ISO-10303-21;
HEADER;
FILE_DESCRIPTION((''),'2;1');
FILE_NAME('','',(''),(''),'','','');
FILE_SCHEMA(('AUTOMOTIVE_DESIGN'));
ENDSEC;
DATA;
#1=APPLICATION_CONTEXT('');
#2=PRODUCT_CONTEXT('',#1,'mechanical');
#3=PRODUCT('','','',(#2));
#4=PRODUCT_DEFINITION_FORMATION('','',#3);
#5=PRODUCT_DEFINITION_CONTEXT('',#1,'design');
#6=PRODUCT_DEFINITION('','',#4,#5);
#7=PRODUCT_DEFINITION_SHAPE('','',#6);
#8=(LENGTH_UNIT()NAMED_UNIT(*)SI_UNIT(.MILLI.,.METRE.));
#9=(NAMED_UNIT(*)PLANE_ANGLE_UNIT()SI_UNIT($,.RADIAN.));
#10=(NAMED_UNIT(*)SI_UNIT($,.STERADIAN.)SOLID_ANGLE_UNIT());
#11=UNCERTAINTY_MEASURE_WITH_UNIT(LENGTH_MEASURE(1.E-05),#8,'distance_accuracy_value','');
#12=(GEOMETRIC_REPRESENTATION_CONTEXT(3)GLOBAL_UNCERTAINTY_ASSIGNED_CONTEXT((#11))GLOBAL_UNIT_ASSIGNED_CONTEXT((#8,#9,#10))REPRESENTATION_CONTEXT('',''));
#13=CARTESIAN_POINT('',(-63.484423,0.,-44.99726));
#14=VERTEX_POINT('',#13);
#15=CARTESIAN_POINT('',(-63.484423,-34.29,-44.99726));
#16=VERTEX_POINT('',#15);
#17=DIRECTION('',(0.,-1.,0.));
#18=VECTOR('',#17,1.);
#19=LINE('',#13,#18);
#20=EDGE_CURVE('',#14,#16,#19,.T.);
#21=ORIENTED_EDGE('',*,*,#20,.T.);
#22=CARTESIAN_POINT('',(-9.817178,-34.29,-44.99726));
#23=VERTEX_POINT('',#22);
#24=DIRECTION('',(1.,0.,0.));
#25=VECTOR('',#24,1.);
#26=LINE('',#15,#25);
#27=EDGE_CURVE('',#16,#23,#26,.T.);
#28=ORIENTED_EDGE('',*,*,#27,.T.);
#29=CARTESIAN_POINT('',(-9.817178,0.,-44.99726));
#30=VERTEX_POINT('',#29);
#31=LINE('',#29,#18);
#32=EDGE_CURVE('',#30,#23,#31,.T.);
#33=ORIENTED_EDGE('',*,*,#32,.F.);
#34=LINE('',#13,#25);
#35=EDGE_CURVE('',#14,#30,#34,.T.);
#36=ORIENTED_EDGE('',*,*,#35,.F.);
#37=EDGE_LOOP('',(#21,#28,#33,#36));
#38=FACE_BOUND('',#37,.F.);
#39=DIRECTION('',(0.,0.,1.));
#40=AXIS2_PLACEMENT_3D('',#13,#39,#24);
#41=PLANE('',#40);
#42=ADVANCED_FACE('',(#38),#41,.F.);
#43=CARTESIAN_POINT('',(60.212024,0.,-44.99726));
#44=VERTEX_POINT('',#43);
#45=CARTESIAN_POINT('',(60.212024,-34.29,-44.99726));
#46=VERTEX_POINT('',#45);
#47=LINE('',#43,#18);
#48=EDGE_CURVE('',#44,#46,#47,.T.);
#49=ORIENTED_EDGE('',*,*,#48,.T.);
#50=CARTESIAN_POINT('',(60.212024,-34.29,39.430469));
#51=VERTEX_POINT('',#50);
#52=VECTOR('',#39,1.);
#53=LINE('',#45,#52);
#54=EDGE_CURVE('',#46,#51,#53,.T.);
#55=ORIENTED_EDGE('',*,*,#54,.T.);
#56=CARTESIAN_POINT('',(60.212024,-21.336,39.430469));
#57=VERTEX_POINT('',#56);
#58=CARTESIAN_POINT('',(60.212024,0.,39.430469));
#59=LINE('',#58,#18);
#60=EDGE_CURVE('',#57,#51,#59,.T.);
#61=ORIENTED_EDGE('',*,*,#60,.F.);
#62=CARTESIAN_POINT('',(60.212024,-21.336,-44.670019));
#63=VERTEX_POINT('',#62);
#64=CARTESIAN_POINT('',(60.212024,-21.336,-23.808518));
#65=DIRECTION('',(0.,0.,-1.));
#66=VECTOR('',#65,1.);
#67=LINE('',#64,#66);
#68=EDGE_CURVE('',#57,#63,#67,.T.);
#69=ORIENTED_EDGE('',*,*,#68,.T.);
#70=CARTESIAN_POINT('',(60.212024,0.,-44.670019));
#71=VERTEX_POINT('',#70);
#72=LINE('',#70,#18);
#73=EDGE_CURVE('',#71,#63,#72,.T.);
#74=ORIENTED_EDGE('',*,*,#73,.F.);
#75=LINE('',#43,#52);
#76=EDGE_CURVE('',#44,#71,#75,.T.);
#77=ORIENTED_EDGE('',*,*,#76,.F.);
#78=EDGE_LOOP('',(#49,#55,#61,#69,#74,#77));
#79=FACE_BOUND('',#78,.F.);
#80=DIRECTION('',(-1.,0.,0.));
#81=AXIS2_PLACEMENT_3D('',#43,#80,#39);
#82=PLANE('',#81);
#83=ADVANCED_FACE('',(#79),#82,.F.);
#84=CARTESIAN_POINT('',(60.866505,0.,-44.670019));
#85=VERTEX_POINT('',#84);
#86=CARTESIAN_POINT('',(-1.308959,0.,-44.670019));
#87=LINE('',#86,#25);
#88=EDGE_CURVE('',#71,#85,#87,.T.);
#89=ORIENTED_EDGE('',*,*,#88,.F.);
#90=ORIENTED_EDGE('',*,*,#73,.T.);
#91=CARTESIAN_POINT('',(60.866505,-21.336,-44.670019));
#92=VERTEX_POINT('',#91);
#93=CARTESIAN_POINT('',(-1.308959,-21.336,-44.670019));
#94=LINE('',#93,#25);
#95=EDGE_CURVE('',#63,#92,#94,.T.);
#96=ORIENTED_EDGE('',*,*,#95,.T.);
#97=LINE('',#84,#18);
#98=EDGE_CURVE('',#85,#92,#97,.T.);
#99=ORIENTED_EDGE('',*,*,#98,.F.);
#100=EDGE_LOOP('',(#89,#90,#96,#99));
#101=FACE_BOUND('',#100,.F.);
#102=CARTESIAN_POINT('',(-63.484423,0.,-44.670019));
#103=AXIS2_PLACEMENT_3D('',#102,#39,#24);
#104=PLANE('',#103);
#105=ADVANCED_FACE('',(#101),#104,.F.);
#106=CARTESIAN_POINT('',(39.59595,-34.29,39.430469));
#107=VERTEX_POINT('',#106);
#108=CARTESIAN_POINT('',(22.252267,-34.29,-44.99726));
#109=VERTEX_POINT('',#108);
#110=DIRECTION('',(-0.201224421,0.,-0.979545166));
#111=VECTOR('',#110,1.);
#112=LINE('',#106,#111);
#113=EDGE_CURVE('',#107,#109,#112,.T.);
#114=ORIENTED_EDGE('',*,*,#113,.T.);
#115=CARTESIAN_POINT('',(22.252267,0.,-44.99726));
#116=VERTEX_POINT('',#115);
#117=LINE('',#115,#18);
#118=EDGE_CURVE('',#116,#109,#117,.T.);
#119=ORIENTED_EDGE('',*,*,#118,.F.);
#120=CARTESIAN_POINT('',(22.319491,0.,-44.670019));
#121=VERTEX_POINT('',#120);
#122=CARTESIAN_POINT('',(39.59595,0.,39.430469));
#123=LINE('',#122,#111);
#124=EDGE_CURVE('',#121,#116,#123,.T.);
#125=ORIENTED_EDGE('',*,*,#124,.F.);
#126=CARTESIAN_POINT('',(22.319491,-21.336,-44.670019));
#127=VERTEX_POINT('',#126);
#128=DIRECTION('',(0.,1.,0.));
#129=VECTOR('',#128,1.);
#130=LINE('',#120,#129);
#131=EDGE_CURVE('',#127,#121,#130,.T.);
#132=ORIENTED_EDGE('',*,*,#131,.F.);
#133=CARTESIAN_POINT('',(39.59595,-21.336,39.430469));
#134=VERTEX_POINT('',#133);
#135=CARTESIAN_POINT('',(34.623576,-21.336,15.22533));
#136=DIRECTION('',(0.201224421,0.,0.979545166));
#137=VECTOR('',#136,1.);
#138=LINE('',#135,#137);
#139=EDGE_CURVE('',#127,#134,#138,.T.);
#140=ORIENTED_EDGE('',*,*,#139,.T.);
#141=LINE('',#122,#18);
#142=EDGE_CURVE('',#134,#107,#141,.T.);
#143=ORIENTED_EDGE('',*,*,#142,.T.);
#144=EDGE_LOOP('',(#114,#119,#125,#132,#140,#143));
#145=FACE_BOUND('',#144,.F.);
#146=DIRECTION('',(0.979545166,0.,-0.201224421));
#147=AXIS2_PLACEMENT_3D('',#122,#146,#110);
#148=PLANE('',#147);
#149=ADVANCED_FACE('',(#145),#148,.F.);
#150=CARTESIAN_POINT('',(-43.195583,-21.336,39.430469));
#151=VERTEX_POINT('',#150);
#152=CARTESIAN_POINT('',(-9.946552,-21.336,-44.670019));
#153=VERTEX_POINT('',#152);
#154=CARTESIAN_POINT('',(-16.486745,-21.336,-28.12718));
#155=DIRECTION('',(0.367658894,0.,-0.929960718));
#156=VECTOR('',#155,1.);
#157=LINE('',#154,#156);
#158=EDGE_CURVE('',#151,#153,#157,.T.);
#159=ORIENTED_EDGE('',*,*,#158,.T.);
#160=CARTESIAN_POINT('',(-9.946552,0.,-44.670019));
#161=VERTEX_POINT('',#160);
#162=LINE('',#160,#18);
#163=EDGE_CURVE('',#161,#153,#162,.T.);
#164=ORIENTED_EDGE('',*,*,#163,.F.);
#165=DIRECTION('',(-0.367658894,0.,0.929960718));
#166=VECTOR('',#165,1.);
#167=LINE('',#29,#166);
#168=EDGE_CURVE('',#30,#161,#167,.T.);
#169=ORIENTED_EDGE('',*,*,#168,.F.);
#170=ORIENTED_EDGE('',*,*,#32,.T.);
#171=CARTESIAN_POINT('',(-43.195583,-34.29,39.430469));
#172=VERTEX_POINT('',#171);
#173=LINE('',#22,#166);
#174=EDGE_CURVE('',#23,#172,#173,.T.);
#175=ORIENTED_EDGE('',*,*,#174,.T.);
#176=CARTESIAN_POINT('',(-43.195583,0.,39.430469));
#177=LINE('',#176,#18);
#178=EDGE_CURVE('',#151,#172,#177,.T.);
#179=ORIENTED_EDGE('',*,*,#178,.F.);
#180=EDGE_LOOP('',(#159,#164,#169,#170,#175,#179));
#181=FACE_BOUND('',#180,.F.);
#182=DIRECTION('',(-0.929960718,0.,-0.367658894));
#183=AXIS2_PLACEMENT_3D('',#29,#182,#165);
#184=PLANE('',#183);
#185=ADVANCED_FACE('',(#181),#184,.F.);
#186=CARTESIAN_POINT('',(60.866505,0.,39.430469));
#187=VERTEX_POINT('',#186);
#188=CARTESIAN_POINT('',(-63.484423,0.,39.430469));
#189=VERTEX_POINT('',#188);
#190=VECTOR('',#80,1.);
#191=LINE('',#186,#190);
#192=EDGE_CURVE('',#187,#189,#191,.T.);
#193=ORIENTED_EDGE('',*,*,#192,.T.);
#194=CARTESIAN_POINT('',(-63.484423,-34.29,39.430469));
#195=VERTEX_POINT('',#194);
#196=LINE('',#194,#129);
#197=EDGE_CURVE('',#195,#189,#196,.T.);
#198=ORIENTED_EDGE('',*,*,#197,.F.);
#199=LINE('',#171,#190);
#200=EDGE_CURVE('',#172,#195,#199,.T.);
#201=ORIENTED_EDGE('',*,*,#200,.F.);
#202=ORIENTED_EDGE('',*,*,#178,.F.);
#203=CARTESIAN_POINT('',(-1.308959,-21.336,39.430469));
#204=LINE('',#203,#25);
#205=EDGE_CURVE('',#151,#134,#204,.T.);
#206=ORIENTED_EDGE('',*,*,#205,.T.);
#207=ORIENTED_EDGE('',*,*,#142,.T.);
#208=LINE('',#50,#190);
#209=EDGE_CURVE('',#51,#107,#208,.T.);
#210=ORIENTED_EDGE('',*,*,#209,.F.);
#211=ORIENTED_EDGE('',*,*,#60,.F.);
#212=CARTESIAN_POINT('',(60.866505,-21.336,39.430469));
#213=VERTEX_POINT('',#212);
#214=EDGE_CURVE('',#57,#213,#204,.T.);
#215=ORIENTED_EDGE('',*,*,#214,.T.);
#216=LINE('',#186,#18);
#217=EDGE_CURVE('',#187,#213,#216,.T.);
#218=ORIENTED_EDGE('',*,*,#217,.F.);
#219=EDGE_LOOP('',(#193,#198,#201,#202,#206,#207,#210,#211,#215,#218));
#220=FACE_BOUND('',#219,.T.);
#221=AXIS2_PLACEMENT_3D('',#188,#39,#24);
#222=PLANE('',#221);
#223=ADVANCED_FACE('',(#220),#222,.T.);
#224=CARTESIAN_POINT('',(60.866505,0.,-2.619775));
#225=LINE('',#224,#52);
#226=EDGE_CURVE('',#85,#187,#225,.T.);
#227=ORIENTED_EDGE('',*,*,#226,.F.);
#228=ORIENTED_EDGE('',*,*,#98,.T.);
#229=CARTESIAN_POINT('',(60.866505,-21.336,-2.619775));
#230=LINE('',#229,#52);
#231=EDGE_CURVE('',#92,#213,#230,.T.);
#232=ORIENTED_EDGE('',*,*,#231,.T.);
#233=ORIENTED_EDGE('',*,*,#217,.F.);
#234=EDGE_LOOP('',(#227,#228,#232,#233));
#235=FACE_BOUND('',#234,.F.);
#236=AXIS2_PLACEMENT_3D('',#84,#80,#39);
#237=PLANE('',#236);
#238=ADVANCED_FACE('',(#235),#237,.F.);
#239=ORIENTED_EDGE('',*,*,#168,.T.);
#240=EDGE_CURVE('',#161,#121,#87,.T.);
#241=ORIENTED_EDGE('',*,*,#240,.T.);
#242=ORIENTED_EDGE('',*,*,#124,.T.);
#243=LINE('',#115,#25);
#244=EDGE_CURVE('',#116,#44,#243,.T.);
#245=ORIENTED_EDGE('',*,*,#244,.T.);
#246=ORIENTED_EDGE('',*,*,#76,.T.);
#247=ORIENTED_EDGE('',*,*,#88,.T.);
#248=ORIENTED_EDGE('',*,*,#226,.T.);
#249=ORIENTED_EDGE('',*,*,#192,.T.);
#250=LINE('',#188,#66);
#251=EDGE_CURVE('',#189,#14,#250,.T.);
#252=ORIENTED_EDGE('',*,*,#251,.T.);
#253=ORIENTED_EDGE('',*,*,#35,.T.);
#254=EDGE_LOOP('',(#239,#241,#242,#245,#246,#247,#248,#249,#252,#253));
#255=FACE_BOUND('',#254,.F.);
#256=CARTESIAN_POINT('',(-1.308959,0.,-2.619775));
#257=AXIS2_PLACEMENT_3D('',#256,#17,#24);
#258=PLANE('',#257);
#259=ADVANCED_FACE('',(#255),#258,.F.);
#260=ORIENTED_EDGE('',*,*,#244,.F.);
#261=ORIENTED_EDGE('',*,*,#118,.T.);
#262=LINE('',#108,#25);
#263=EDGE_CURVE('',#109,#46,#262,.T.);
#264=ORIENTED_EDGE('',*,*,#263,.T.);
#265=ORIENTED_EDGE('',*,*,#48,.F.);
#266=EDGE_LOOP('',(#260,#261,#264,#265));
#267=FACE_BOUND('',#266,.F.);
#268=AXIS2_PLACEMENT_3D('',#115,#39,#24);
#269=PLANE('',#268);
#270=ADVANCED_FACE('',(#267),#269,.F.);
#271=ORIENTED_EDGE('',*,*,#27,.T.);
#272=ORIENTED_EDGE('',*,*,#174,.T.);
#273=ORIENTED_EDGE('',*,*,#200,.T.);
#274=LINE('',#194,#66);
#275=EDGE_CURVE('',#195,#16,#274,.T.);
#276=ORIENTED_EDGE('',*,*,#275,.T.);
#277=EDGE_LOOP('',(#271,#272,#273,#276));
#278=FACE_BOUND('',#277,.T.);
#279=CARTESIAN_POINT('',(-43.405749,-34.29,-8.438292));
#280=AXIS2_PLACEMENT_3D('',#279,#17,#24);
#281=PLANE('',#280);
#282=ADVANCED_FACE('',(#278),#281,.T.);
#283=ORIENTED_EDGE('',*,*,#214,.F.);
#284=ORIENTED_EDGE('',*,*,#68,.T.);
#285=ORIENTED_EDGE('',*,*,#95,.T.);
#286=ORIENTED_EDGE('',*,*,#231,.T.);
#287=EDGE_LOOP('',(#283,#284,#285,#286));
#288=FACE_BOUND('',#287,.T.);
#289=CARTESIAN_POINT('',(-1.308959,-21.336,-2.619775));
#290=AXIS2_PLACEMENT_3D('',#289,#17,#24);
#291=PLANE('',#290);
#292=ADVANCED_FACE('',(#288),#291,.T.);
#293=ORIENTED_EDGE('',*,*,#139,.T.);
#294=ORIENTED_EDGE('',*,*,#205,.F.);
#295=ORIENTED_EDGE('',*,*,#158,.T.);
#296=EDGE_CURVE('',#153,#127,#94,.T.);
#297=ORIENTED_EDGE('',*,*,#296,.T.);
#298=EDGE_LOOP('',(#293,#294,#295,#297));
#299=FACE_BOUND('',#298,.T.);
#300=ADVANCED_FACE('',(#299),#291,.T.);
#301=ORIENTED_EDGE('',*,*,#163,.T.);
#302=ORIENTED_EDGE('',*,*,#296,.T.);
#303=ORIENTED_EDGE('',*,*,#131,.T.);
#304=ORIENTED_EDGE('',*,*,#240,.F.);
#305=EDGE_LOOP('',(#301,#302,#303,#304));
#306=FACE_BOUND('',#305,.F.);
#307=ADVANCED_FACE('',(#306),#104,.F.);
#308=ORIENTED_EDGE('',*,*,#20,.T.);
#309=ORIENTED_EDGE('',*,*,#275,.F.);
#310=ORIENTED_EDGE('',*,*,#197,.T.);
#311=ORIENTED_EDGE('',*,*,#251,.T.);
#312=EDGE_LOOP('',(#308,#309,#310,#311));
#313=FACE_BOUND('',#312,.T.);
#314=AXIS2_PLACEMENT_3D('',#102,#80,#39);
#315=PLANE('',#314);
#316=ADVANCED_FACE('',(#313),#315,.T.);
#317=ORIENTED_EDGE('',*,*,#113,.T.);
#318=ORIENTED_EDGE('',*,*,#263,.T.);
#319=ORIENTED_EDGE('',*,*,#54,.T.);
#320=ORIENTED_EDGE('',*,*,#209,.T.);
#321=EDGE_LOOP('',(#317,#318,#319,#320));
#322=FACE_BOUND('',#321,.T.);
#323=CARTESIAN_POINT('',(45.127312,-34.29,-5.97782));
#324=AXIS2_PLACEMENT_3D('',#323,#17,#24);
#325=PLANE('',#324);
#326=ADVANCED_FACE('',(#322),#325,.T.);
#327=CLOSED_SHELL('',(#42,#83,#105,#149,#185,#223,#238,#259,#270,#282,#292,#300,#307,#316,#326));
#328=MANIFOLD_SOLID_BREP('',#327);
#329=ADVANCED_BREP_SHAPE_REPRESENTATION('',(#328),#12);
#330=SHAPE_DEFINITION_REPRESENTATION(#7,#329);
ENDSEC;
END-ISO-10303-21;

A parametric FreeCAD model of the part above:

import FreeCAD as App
import Part
import Sketcher

V = App.Vector
Q = App.Units.Quantity

doc = App.newDocument("Part")
body = doc.addObject("PartDesign::Body", "Body")

# Sketch on XZ plane
sketch1 = body.newObject("Sketcher::SketchObject", "Sketch")
sketch1.AttachmentSupport = (doc.getObject("XZ_Plane"), [""])
sketch1.MapMode = "FlatFace"
sketch1.addGeometry(Part.LineSegment(V(-63, 39, 0), V(-63, -45, 0)), False)
sketch1.addGeometry(Part.LineSegment(V(-63, -45, 0), V(61, -45, 0)), False)
sketch1.addGeometry(Part.LineSegment(V(61, -45, 0), V(61, 39, 0)), False)
sketch1.addGeometry(Part.LineSegment(V(61, 39, 0), V(-63, 39, 0)), False)
sketch1.addConstraint(Sketcher.Constraint("Coincident", 0, 2, 1, 1))
sketch1.addConstraint(Sketcher.Constraint("Coincident", 1, 2, 2, 1))
sketch1.addConstraint(Sketcher.Constraint("Coincident", 2, 2, 3, 1))
sketch1.addConstraint(Sketcher.Constraint("Coincident", 3, 2, 0, 1))
sketch1.addConstraint(Sketcher.Constraint("Vertical", 0))
sketch1.addConstraint(Sketcher.Constraint("Horizontal", 1))
sketch1.addConstraint(Sketcher.Constraint("Vertical", 2))
sketch1.addConstraint(Sketcher.Constraint("Horizontal", 3))
sketch1.addConstraint(Sketcher.Constraint("DistanceY", 0, 2, 0, 1, 84.100488))
sketch1.addConstraint(Sketcher.Constraint("DistanceX", 1, 1, 1, 2, 124.350928))
sketch1.addConstraint(Sketcher.Constraint("DistanceY", 0, 2, -1, 1, 44.670019))
sketch1.addConstraint(Sketcher.Constraint("DistanceX", 0, 2, -1, 1, 63.484423))
pad1 = body.newObject("PartDesign::Pad", "Pad")
pad1.Profile = sketch1
pad1.Length = Q("0.84 in")

# Sketch on XZ plane
sketch2 = body.newObject("Sketcher::SketchObject", "Sketch001")
sketch2.AttachmentSupport = (doc.getObject("XZ_Plane"), [""])
sketch2.MapMode = "FlatFace"
sketch2.addGeometry(Part.LineSegment(V(-43, 39, 0), V(-63, 39, 0)), False)
sketch2.addGeometry(Part.LineSegment(V(-63, 39, 0), V(-63, -45, 0)), False)
sketch2.addGeometry(Part.LineSegment(V(-63, -45, 0), V(-10, -45, 0)), False)
sketch2.addGeometry(Part.LineSegment(V(-10, -45, 0), V(-43, 39, 0)), False)
sketch2.addGeometry(Part.LineSegment(V(60, -45, 0), V(60, 39, 0)), False)
sketch2.addGeometry(Part.LineSegment(V(60, 39, 0), V(40, 39, 0)), False)
sketch2.addGeometry(Part.LineSegment(V(40, 39, 0), V(22, -45, 0)), False)
sketch2.addGeometry(Part.LineSegment(V(22, -45, 0), V(60, -45, 0)), False)
sketch2.addConstraint(Sketcher.Constraint("Coincident", 0, 2, 1, 1))
sketch2.addConstraint(Sketcher.Constraint("Coincident", 1, 2, 2, 1))
sketch2.addConstraint(Sketcher.Constraint("Coincident", 2, 2, 3, 1))
sketch2.addConstraint(Sketcher.Constraint("Coincident", 3, 2, 0, 1))
sketch2.addConstraint(Sketcher.Constraint("Coincident", 4, 2, 5, 1))
sketch2.addConstraint(Sketcher.Constraint("Coincident", 5, 2, 6, 1))
sketch2.addConstraint(Sketcher.Constraint("Coincident", 6, 2, 7, 1))
sketch2.addConstraint(Sketcher.Constraint("Coincident", 7, 2, 4, 1))
sketch2.addConstraint(Sketcher.Constraint("Horizontal", 0))
sketch2.addConstraint(Sketcher.Constraint("Vertical", 1))
sketch2.addConstraint(Sketcher.Constraint("Horizontal", 2))
sketch2.addConstraint(Sketcher.Constraint("Vertical", 4))
sketch2.addConstraint(Sketcher.Constraint("Horizontal", 5))
sketch2.addConstraint(Sketcher.Constraint("Horizontal", 7))
sketch2.addConstraint(Sketcher.Constraint("Horizontal", 3, 2, 4, 2))
sketch2.addConstraint(Sketcher.Constraint("Horizontal", 2, 2, 6, 2))
sketch2.addConstraint(Sketcher.Constraint("DistanceX", 0, 2, 0, 1, 20.28884))
sketch2.addConstraint(Sketcher.Constraint("DistanceY", 1, 2, 1, 1, 84.427729))
sketch2.addConstraint(Sketcher.Constraint("DistanceX", 2, 2, 4, 2, 70.029202))
sketch2.addConstraint(Sketcher.Constraint("Distance", 3, 90.786339))
sketch2.addConstraint(Sketcher.Constraint("DistanceX", 5, 2, 5, 1, 20.616074))
sketch2.addConstraint(Sketcher.Constraint("DistanceX", 7, 1, 7, 2, 37.959757))
sketch2.addConstraint(Sketcher.Constraint("DistanceY", -1, 1, 0, 2, 39.430469))
sketch2.addConstraint(Sketcher.Constraint("DistanceX", -1, 1, 5, 2, 39.59595))
pad2 = body.newObject("PartDesign::Pad", "Pad001")
pad2.Profile = sketch2
pad2.Length = Q("1.35 in")

doc.recompute()
